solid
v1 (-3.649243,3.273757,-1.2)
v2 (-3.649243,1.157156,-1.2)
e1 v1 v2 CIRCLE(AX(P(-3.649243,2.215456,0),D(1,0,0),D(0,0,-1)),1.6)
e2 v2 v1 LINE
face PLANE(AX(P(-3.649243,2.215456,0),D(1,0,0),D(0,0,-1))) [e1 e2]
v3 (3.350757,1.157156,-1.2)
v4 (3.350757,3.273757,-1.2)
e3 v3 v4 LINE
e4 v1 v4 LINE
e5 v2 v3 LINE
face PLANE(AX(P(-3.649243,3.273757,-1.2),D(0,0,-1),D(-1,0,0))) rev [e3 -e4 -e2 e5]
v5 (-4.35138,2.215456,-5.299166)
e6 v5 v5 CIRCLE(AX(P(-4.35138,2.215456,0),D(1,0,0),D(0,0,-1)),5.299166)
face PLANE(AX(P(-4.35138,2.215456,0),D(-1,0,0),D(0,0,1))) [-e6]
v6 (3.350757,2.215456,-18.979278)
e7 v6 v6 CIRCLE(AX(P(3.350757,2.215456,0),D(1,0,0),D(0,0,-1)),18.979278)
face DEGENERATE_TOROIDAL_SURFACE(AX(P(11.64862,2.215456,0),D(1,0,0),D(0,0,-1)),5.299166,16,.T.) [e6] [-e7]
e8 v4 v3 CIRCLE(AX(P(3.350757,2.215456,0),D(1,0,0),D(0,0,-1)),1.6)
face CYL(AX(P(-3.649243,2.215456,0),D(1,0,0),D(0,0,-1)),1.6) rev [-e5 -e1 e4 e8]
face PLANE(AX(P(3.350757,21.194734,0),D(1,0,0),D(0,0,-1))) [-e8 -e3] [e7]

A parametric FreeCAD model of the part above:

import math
import FreeCAD as App
import Part
import Sketcher

doc = App.newDocument("Part")
params = doc.addObject("Spreadsheet::Sheet", "Params")
for row, (alias, value) in enumerate([
    ("sketch1_radius", "16 mm"),
    ("revolution_angle", "360 deg"),
    ("sketch2_radius", "1.6 mm"),
    ("pocket1_length", "7 mm"),
], start=1):
    params.set(f"A{row}", alias)
    params.set(f"B{row}", "=" + value)
    params.setAlias(f"B{row}", alias)

body = doc.addObject("PartDesign::Body", "Body")

sketch1 = body.newObject("Sketcher::SketchObject", "Sketch")
sketch1.AttachmentSupport = (doc.getObject("XY_Plane"), [""])
sketch1.MapMode = "FlatFace"
sketch1.addGeometry([
    Part.LineSegment(App.Vector(-4, 2, 0), App.Vector(3, 2, 0)),
    Part.LineSegment(App.Vector(3, 2, 0), App.Vector(3, 21, 0)),
    Part.ArcOfCircle(Part.Circle(App.Vector(12, 8, 0), App.Vector(0, 0, 1), 16), math.radians(121), math.radians(180)),
    Part.LineSegment(App.Vector(-4, 8, 0), App.Vector(-4, 2, 0)),
], False)
sketch1.addGeometry(Part.LineSegment(App.Vector(12, 2, 0), App.Vector(-4, 2, 0)), True)
sketch1.addConstraint([
    Sketcher.Constraint("Coincident", 0, 2, 1, 1),
    Sketcher.Constraint("Coincident", 1, 2, 2, 1),
    Sketcher.Constraint("Tangent", 2, 2, 3, 1),
    Sketcher.Constraint("Coincident", 3, 2, 0, 1),
    Sketcher.Constraint("Horizontal", 0),
    Sketcher.Constraint("Vertical", 1),
    Sketcher.Constraint("Vertical", 3),
    Sketcher.Constraint("Horizontal", 4),
    Sketcher.Constraint("Coincident", 4, 2, 3, 2),
    Sketcher.Constraint("Vertical", 2, 3, 4, 1),
    Sketcher.Constraint("Radius", 2, 16.0),
    Sketcher.Constraint("DistanceY", 1, 1, 1, 2, 18.979278),
    Sketcher.Constraint("DistanceX", 0, 1, 0, 2, 7.702137),
    Sketcher.Constraint("DistanceX", -1, 1, 2, 3, 11.64862),
    Sketcher.Constraint("DistanceY", -1, 1, 2, 3, 7.514622),
])
sketch1.setExpression("Constraints[10]", "Params.sketch1_radius")
revolution = body.newObject("PartDesign::Revolution", "Revolution")
revolution.Profile = sketch1
revolution.ReferenceAxis = (sketch1, ["Axis0"])
revolution.setExpression("Angle", "Params.revolution_angle")

sketch2 = body.newObject("Sketcher::SketchObject", "Sketch001")
sketch2.AttachmentSupport = (doc.getObject("YZ_Plane"), [""])
sketch2.MapMode = "FlatFace"
sketch2.AttachmentOffset = App.Placement(App.Vector(0, 0, 3.350757), App.Rotation())
sketch2.addGeometry([
    Part.LineSegment(App.Vector(1.2, -1.2, 0), App.Vector(3.3, -1.2, 0)),
    Part.ArcOfCircle(Part.Circle(App.Vector(2.2, 0, 0), App.Vector(0, 0, 1), 1.6), math.radians(-49), math.radians(229)),
], False)
sketch2.addConstraint([
    Sketcher.Constraint("Coincident", 0, 1, 1, 2),
    Sketcher.Constraint("Coincident", 1, 1, 0, 2),
    Sketcher.Constraint("Horizontal", 0),
    Sketcher.Constraint("PointOnObject", 1, 3, -1),
    Sketcher.Constraint("Radius", 1, 1.6),
    Sketcher.Constraint("DistanceY", 0, 1, -1, 1, 1.2),
    Sketcher.Constraint("DistanceX", -1, 1, 1, 3, 2.215456),
])
sketch2.setExpression("Constraints[4]", "Params.sketch2_radius")
pocket1 = body.newObject("PartDesign::Pocket", "Pocket")
pocket1.Profile = sketch2
pocket1.setExpression("Length", "Params.pocket1_length")

doc.recompute()
